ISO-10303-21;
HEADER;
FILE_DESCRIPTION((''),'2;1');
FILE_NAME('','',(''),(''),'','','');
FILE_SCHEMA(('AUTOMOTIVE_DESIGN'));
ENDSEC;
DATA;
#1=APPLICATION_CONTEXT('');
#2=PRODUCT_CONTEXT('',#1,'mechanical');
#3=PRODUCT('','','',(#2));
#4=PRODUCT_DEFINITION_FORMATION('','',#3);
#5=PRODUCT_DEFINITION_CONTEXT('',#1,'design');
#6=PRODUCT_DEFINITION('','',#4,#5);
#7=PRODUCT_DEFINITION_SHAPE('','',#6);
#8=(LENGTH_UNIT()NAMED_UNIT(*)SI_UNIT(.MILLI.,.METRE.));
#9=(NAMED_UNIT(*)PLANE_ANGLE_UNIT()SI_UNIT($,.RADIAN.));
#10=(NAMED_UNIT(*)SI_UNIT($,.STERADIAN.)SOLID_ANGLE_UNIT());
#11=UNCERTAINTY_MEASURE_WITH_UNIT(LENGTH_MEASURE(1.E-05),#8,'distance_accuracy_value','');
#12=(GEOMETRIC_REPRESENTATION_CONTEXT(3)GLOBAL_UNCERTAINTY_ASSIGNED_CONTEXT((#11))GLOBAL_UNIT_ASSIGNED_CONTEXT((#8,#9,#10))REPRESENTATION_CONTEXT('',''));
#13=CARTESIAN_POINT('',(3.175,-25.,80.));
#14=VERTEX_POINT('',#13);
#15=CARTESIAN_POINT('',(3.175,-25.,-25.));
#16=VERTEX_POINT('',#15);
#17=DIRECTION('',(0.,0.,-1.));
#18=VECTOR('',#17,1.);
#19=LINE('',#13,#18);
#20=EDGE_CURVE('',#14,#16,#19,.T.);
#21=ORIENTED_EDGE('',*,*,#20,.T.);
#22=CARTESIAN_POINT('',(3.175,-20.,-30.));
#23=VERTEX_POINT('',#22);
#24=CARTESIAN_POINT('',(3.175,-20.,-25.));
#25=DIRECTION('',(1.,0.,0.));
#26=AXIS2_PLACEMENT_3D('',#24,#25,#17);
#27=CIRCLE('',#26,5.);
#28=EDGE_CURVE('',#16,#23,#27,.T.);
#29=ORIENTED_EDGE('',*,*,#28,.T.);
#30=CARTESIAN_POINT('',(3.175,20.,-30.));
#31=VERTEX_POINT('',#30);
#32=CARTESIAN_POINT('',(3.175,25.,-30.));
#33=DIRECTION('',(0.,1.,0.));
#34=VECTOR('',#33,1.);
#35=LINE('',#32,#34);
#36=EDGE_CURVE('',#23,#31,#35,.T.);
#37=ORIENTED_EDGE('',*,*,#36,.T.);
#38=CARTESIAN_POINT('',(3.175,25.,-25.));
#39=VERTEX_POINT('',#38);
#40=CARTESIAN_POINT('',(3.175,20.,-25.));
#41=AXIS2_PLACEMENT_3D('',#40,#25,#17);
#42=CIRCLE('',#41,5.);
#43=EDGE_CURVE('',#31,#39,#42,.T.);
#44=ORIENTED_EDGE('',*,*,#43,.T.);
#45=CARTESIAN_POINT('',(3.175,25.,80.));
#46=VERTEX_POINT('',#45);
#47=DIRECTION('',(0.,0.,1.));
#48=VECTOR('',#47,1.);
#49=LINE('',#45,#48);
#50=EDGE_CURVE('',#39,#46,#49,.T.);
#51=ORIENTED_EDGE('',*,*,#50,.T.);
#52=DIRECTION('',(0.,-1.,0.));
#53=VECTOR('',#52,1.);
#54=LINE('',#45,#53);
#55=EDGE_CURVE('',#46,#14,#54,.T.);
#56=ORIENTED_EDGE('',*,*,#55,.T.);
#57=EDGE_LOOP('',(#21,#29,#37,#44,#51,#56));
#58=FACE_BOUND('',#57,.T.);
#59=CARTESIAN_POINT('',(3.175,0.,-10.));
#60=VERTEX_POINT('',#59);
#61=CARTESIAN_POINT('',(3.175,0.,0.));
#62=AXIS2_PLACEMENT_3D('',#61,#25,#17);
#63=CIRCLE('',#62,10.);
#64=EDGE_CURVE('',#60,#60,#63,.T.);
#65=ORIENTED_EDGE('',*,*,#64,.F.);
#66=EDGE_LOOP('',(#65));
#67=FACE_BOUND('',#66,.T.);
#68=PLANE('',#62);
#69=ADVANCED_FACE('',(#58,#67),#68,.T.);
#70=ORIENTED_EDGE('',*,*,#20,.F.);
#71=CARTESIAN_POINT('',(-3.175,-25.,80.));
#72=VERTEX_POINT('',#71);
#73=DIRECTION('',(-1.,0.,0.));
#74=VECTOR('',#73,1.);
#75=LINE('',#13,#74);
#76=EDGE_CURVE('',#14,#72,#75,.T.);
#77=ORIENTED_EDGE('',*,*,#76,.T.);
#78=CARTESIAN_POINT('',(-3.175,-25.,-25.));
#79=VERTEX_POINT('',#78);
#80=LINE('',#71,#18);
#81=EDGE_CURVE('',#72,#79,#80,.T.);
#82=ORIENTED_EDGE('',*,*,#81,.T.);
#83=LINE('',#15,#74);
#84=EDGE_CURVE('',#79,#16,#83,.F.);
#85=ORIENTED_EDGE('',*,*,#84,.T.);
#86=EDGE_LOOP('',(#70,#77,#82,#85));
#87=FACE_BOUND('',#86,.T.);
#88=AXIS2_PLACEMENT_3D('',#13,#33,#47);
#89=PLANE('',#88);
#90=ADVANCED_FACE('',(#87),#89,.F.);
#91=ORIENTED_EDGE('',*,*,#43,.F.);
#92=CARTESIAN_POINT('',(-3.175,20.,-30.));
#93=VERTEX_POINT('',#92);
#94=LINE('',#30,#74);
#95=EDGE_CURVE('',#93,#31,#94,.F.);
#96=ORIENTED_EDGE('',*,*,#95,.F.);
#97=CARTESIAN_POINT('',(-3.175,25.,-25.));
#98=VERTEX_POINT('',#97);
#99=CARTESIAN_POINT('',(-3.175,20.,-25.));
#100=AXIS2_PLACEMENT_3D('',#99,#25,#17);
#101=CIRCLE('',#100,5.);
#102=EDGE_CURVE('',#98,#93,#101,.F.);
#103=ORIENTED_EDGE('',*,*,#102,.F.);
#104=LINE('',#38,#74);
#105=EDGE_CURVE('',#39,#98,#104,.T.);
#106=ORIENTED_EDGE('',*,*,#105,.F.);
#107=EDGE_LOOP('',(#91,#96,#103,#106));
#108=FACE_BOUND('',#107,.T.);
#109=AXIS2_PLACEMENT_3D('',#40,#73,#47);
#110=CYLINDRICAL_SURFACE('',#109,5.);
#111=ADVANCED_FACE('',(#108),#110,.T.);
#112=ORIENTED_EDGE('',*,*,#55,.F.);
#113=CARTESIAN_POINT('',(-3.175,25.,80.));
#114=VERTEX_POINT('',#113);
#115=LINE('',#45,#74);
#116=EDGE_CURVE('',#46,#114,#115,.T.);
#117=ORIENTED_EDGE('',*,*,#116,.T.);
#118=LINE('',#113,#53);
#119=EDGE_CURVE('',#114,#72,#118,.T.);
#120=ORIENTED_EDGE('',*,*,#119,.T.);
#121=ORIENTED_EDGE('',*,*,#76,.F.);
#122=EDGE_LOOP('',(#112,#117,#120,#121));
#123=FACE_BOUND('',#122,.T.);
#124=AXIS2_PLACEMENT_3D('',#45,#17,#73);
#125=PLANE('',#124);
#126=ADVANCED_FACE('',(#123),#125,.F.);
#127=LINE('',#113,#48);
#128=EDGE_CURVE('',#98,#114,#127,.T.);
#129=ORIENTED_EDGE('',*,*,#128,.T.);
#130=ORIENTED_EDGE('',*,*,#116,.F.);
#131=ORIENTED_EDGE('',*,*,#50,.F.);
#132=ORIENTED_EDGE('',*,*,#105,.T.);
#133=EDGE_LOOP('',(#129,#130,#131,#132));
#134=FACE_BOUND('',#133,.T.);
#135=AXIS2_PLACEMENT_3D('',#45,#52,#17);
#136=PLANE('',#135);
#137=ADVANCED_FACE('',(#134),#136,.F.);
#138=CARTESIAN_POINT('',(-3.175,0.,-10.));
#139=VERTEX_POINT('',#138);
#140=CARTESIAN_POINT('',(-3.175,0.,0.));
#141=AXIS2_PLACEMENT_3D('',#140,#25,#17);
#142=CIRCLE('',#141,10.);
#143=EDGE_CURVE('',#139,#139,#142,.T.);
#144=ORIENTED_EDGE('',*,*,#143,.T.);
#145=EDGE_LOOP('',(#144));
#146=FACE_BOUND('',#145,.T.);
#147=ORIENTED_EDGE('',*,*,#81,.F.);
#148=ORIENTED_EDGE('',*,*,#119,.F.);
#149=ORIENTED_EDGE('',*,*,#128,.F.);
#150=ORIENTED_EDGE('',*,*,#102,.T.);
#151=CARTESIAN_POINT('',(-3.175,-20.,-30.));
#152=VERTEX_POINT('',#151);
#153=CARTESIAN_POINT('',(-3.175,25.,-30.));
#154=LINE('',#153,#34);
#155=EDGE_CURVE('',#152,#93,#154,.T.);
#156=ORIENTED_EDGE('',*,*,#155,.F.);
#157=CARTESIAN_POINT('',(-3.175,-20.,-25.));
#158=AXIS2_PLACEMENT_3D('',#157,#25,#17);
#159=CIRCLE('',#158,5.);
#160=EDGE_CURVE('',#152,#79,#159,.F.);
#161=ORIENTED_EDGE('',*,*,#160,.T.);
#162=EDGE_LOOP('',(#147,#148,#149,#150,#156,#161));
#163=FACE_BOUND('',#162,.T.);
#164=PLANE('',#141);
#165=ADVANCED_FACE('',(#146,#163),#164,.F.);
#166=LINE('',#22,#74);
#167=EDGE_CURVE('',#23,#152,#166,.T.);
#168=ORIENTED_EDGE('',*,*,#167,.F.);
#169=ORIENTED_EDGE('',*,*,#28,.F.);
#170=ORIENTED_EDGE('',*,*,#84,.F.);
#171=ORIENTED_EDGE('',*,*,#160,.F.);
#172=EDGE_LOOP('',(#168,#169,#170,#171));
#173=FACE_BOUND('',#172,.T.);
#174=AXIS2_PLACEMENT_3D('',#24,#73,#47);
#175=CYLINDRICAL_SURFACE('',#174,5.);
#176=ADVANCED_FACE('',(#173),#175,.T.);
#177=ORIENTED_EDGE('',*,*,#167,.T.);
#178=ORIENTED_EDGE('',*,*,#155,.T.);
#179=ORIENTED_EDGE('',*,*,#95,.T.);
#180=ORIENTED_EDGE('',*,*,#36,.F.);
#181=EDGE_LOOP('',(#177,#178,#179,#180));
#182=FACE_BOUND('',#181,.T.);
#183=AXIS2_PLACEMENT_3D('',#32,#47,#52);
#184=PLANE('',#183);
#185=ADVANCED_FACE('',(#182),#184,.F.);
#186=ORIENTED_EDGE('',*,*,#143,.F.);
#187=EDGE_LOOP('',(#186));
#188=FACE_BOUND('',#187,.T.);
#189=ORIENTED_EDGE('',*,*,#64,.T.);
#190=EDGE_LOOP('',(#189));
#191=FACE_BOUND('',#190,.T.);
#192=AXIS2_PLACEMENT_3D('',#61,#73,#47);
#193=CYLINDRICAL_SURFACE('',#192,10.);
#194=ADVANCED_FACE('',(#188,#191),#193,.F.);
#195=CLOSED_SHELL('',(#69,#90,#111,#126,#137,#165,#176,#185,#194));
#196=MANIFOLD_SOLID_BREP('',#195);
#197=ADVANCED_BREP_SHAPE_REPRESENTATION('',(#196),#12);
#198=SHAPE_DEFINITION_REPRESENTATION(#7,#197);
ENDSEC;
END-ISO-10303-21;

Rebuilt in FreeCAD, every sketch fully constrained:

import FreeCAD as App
import Part
import Sketcher
Q = App.Units.Quantity


def edges_at(feature, points):
    """Names of the edges that pass closest to the given points."""
    edges = feature.Shape.Edges
    near = lambda p: min(range(len(edges)), key=lambda i: edges[i].distToShape(Part.Vertex(*p))[0])
    return sorted({f"Edge{near(p) + 1}" for p in points})

doc = App.newDocument("Part")
body = doc.addObject("PartDesign::Body", "Body")

# Sketch on YZ plane
sketch1 = body.newObject("Sketcher::SketchObject", "Sketch")
sketch1.AttachmentSupport = (doc.getObject("YZ_Plane"), [""])
sketch1.MapMode = "FlatFace"
sketch1.addGeometry([
    Part.LineSegment(App.Vector(25, 80, 0), App.Vector(-25, 80, 0)),  # 0
    Part.LineSegment(App.Vector(-25, 80, 0), App.Vector(-25, -30, 0)),  # 1
    Part.LineSegment(App.Vector(-25, -30, 0), App.Vector(25, -30, 0)),  # 2
    Part.LineSegment(App.Vector(25, -30, 0), App.Vector(25, 80, 0)),  # 3
    Part.Circle(App.Vector(0, 0, 0), App.Vector(0, 0, 1), 10),  # 4
], False)
sketch1.addConstraint([
    Sketcher.Constraint("Coincident", 0, 2, 1, 1),
    Sketcher.Constraint("Coincident", 1, 2, 2, 1),
    Sketcher.Constraint("Coincident", 2, 2, 3, 1),
    Sketcher.Constraint("Coincident", 3, 2, 0, 1),
    Sketcher.Constraint("Horizontal", 0),
    Sketcher.Constraint("Vertical", 1),
    Sketcher.Constraint("Horizontal", 2),
    Sketcher.Constraint("Vertical", 3),
    Sketcher.Constraint("Coincident", 4, 3, -1, 1),
    Sketcher.Constraint("Diameter", 4, Q("20 mm")),
    Sketcher.Constraint("DistanceX", 0, 2, 0, 1, Q("50 mm")),
    Sketcher.Constraint("DistanceY", 1, 2, 1, 1, Q("110 mm")),
    Sketcher.Constraint("DistanceX", 0, 2, -1, 1, Q("25 mm")),
    Sketcher.Constraint("DistanceY", -1, 1, 0, 2, Q("80 mm")),
])
pad1 = body.newObject("PartDesign::Pad", "Pad")
pad1.Profile = sketch1
pad1.Length = 6.35
pad1.Midplane = True
doc.recompute()

fillet = body.newObject("PartDesign::Fillet", "Fillet")
fillet.Base = (pad1, edges_at(pad1, [(0, -25, -30), (0, 25, -30)]))
fillet.Radius = 5

doc.recompute()
